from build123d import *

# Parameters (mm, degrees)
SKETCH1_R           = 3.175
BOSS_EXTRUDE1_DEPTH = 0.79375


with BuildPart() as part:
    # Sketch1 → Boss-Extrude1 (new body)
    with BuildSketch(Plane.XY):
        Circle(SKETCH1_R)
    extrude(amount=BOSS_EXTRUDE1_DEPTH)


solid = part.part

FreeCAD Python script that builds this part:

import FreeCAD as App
import Part
import Sketcher

V = App.Vector
Q = App.Units.Quantity

doc = App.newDocument("Part")
body = doc.addObject("PartDesign::Body", "Body")

# Sketch on XY plane
sketch1 = body.newObject("Sketcher::SketchObject", "Sketch")
sketch1.AttachmentSupport = (doc.getObject("XY_Plane"), [""])
sketch1.MapMode = "FlatFace"
sketch1.addGeometry(Part.Circle(V(0, 0, 0), V(0, 0, 1), 3.175), False)
sketch1.addConstraint([
    Sketcher.Constraint("Coincident", 0, 3, -1, 1),
    Sketcher.Constraint("Diameter", 0, Q("0.25 in")),
])
pad1 = body.newObject("PartDesign::Pad", "Pad")
pad1.Profile = sketch1
pad1.Length = Q("0.03125 in")

doc.recompute()
